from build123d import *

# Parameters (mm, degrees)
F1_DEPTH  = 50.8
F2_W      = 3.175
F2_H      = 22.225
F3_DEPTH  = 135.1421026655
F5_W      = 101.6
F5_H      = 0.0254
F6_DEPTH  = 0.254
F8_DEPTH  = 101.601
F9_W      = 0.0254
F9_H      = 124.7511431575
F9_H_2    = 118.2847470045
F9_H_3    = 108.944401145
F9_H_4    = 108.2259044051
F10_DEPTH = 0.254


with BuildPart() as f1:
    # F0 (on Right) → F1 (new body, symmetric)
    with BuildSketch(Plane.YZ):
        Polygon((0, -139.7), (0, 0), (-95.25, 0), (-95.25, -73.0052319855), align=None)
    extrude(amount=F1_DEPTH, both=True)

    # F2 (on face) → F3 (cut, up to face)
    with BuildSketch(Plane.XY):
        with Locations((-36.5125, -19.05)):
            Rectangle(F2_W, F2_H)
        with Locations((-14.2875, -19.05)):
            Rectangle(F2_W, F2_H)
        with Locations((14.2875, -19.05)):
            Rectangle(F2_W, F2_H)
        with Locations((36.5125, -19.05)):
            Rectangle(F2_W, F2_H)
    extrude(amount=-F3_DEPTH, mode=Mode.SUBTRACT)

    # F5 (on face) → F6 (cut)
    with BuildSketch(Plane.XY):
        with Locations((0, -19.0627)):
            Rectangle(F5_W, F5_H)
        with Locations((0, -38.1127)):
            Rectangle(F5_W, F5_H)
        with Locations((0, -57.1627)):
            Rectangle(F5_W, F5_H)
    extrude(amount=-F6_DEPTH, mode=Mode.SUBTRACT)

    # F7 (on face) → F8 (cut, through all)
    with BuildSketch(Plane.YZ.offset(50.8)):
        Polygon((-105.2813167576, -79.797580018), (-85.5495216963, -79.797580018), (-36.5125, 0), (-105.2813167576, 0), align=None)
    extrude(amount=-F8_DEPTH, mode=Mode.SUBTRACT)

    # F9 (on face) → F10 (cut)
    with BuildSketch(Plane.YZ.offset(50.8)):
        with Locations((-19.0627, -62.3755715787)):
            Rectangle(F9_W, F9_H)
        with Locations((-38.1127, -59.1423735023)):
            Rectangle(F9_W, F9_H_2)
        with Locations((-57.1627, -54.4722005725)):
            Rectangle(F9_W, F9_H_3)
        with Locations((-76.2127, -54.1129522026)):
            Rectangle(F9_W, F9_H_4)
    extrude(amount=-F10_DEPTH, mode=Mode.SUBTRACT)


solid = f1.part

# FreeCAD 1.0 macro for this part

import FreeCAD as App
import Part
import Sketcher

V = App.Vector
Q = App.Units.Quantity

doc = App.newDocument("Part")
params = doc.addObject("Spreadsheet::Sheet", "Params")
for row, (alias, value) in enumerate([
    ("sketch1_height", "5.5 in"),
    ("sketch1_width", "3.75 in"),
    ("pad1_length", "4 in"),
    ("sketch2_width", "0.125 in"),
    ("sketch2_height", "0.875 in"),
    ("pocket1_length", "135.142103 mm"),
    ("sketch3_width", "4 in"),
    ("sketch3_height", "0.001 in"),
    ("pocket2_length", "0.01 in"),
    ("sketch5_width", "0.001 in"),
    ("pocket4_length", "0.01 in"),
], start=1):
    params.set(f"A{row}", alias)
    params.set(f"B{row}", "=" + value)
    params.setAlias(f"B{row}", alias)

body = doc.addObject("PartDesign::Body", "Body")

# Sketch on YZ plane
sketch1 = body.newObject("Sketcher::SketchObject", "Sketch")
sketch1.AttachmentSupport = (doc.getObject("YZ_Plane"), [""])
sketch1.MapMode = "FlatFace"
sketch1.addGeometry([
    Part.LineSegment(V(0, -140, 0), V(0, 0, 0)),
    Part.LineSegment(V(0, 0, 0), V(-95, 0, 0)),
    Part.LineSegment(V(-95, 0, 0), V(-95, -73, 0)),
    Part.LineSegment(V(-95, -73, 0), V(0, -140, 0)),
], False)
sketch1.addConstraint([
    Sketcher.Constraint("Coincident", 0, 2, 1, 1),
    Sketcher.Constraint("Coincident", 1, 2, 2, 1),
    Sketcher.Constraint("Coincident", 2, 2, 3, 1),
    Sketcher.Constraint("Coincident", 3, 2, 0, 1),
    Sketcher.Constraint("Vertical", 0),
    Sketcher.Constraint("Horizontal", 1),
    Sketcher.Constraint("Vertical", 2),
    Sketcher.Constraint("Coincident", 0, 2, -1, 1),
    Sketcher.Constraint("DistanceY", 0, 1, 0, 2, Q("5.5 in")),
    Sketcher.Constraint("Angle", 3, Q("-35 deg")),
    Sketcher.Constraint("DistanceX", 1, 2, 1, 1, Q("3.75 in")),
])
sketch1.setExpression("Constraints[8]", "Params.sketch1_height")
sketch1.setExpression("Constraints[10]", "Params.sketch1_width")
pad1 = body.newObject("PartDesign::Pad", "Pad")
pad1.Profile = sketch1
pad1.setExpression("Length", "Params.pad1_length")
pad1.Midplane = True

# Sketch on XY plane
sketch2 = body.newObject("Sketcher::SketchObject", "Sketch001")
sketch2.AttachmentSupport = (doc.getObject("XY_Plane"), [""])
sketch2.MapMode = "FlatFace"
sketch2.addGeometry([
    Part.LineSegment(V(-38.1, -7.9, 0), V(-38.1, -30.2, 0)),  # 0
    Part.LineSegment(V(-38.1, -30.2, 0), V(-34.9, -30.2, 0)),  # 1
    Part.LineSegment(V(-34.9, -30.2, 0), V(-34.9, -7.9, 0)),  # 2
    Part.LineSegment(V(-34.9, -7.9, 0), V(-38.1, -7.9, 0)),  # 3
    Part.LineSegment(V(-15.9, -7.9, 0), V(-15.9, -30.2, 0)),  # 4
    Part.LineSegment(V(-15.9, -30.2, 0), V(-12.7, -30.2, 0)),  # 5
    Part.LineSegment(V(-12.7, -30.2, 0), V(-12.7, -7.9, 0)),  # 6
    Part.LineSegment(V(-12.7, -7.9, 0), V(-15.9, -7.9, 0)),  # 7
    Part.LineSegment(V(12.7, -7.9, 0), V(12.7, -30.2, 0)),  # 8
    Part.LineSegment(V(12.7, -30.2, 0), V(15.9, -30.2, 0)),  # 9
    Part.LineSegment(V(15.9, -30.2, 0), V(15.9, -7.9, 0)),  # 10
    Part.LineSegment(V(15.9, -7.9, 0), V(12.7, -7.9, 0)),  # 11
    Part.LineSegment(V(34.9, -7.9, 0), V(34.9, -30.2, 0)),  # 12
    Part.LineSegment(V(34.9, -30.2, 0), V(38.1, -30.2, 0)),  # 13
    Part.LineSegment(V(38.1, -30.2, 0), V(38.1, -7.9, 0)),  # 14
    Part.LineSegment(V(38.1, -7.9, 0), V(34.9, -7.9, 0)),  # 15
], False)
sketch2.addConstraint([
    Sketcher.Constraint("Coincident", 0, 2, 1, 1),
    Sketcher.Constraint("Coincident", 1, 2, 2, 1),
    Sketcher.Constraint("Coincident", 2, 2, 3, 1),
    Sketcher.Constraint("Coincident", 3, 2, 0, 1),
    Sketcher.Constraint("Coincident", 4, 2, 5, 1),
    Sketcher.Constraint("Coincident", 5, 2, 6, 1),
    Sketcher.Constraint("Coincident", 6, 2, 7, 1),
    Sketcher.Constraint("Coincident", 7, 2, 4, 1),
    Sketcher.Constraint("Coincident", 8, 2, 9, 1),
    Sketcher.Constraint("Coincident", 9, 2, 10, 1),
    Sketcher.Constraint("Coincident", 10, 2, 11, 1),
    Sketcher.Constraint("Coincident", 11, 2, 8, 1),
    Sketcher.Constraint("Coincident", 12, 2, 13, 1),
    Sketcher.Constraint("Coincident", 13, 2, 14, 1),
    Sketcher.Constraint("Coincident", 14, 2, 15, 1),
    Sketcher.Constraint("Coincident", 15, 2, 12, 1),
    Sketcher.Constraint("Vertical", 0),
    Sketcher.Constraint("Horizontal", 1),
    Sketcher.Constraint("Vertical", 2),
    Sketcher.Constraint("Horizontal", 3),
    Sketcher.Constraint("Vertical", 4),
    Sketcher.Constraint("Horizontal", 5),
    Sketcher.Constraint("Vertical", 6),
    Sketcher.Constraint("Horizontal", 7),
    Sketcher.Constraint("Vertical", 8),
    Sketcher.Constraint("Horizontal", 9),
    Sketcher.Constraint("Vertical", 10),
    Sketcher.Constraint("Horizontal", 11),
    Sketcher.Constraint("Vertical", 12),
    Sketcher.Constraint("Horizontal", 13),
    Sketcher.Constraint("Vertical", 14),
    Sketcher.Constraint("Horizontal", 15),
    Sketcher.Constraint("Symmetric", 5, 2, 8, 2, -2),
    Sketcher.Constraint("Symmetric", 7, 2, 10, 2, -2),
    Sketcher.Constraint("Symmetric", 1, 2, 12, 2, -2),
    Sketcher.Constraint("Symmetric", 3, 2, 14, 2, -2),
    Sketcher.Constraint("Horizontal", 1, 2, 4, 2),
    Sketcher.Constraint("Horizontal", 3, 2, 6, 2),
    Sketcher.Constraint("Equal", 3, 5),
    Sketcher.Constraint("DistanceX", 0, 2, 5, 2, Q("1 in")),
    Sketcher.Constraint("DistanceX", 5, 2, 8, 2, Q("1 in")),
    Sketcher.Constraint("DistanceX", 1, 1, 1, 2, Q("0.125 in")),
    Sketcher.Constraint("DistanceY", 0, 2, 0, 1, Q("0.875 in")),
    Sketcher.Constraint("DistanceY", 0, 2, -1, 1, Q("1.1875 in")),
])
sketch2.setExpression("Constraints[41]", "Params.sketch2_width")
sketch2.setExpression("Constraints[42]", "Params.sketch2_height")
pocket1 = body.newObject("PartDesign::Pocket", "Pocket")
pocket1.Profile = sketch2
pocket1.setExpression("Length", "Params.pocket1_length")

# Sketch on XY plane
sketch3 = body.newObject("Sketcher::SketchObject", "Sketch002")
sketch3.AttachmentSupport = (doc.getObject("XY_Plane"), [""])
sketch3.MapMode = "FlatFace"
sketch3.addGeometry([
    Part.LineSegment(V(-50.8, -19.05, 0), V(-50.8, -19.075, 0)),  # 0
    Part.LineSegment(V(-50.8, -19.075, 0), V(50.8, -19.075, 0)),  # 1
    Part.LineSegment(V(50.8, -19.075, 0), V(50.8, -19.05, 0)),  # 2
    Part.LineSegment(V(50.8, -19.05, 0), V(-50.8, -19.05, 0)),  # 3
    Part.LineSegment(V(-50.8, -38.1, 0), V(-50.8, -38.125, 0)),  # 4
    Part.LineSegment(V(-50.8, -38.125, 0), V(50.8, -38.125, 0)),  # 5
    Part.LineSegment(V(50.8, -38.125, 0), V(50.8, -38.1, 0)),  # 6
    Part.LineSegment(V(50.8, -38.1, 0), V(-50.8, -38.1, 0)),  # 7
    Part.LineSegment(V(-50.8, -57.15, 0), V(-50.8, -57.175, 0)),  # 8
    Part.LineSegment(V(-50.8, -57.175, 0), V(50.8, -57.175, 0)),  # 9
    Part.LineSegment(V(50.8, -57.175, 0), V(50.8, -57.15, 0)),  # 10
    Part.LineSegment(V(50.8, -57.15, 0), V(-50.8, -57.15, 0)),  # 11
], False)
sketch3.addConstraint([
    Sketcher.Constraint("Coincident", 0, 2, 1, 1),
    Sketcher.Constraint("Coincident", 1, 2, 2, 1),
    Sketcher.Constraint("Coincident", 2, 2, 3, 1),
    Sketcher.Constraint("Coincident", 3, 2, 0, 1),
    Sketcher.Constraint("Coincident", 4, 2, 5, 1),
    Sketcher.Constraint("Coincident", 5, 2, 6, 1),
    Sketcher.Constraint("Coincident", 6, 2, 7, 1),
    Sketcher.Constraint("Coincident", 7, 2, 4, 1),
    Sketcher.Constraint("Coincident", 8, 2, 9, 1),
    Sketcher.Constraint("Coincident", 9, 2, 10, 1),
    Sketcher.Constraint("Coincident", 10, 2, 11, 1),
    Sketcher.Constraint("Coincident", 11, 2, 8, 1),
    Sketcher.Constraint("Vertical", 0),
    Sketcher.Constraint("Horizontal", 1),
    Sketcher.Constraint("Vertical", 2),
    Sketcher.Constraint("Horizontal", 3),
    Sketcher.Constraint("Vertical", 4),
    Sketcher.Constraint("Horizontal", 5),
    Sketcher.Constraint("Vertical", 6),
    Sketcher.Constraint("Horizontal", 7),
    Sketcher.Constraint("Vertical", 8),
    Sketcher.Constraint("Horizontal", 9),
    Sketcher.Constraint("Vertical", 10),
    Sketcher.Constraint("Horizontal", 11),
    Sketcher.Constraint("Vertical", 3, 2, 4, 2),
    Sketcher.Constraint("Vertical", 2, 2, 5, 2),
    Sketcher.Constraint("Vertical", 7, 2, 8, 2),
    Sketcher.Constraint("Vertical", 6, 2, 9, 2),
    Sketcher.Constraint("Equal", 2, 4),
    Sketcher.Constraint("Equal", 6, 8),
    Sketcher.Constraint("DistanceX", 1, 1, 1, 2, Q("4 in")),
    Sketcher.Constraint("DistanceX", 0, 2, -1, 1, Q("2 in")),
    Sketcher.Constraint("DistanceY", 6, 2, -1, 1, Q("1.5 in")),
    Sketcher.Constraint("DistanceY", 8, 2, 0, 2, Q("1.5 in")),
    Sketcher.Constraint("DistanceY", 0, 2, 0, 1, Q("0.001 in")),
    Sketcher.Constraint("DistanceY", 2, 2, -1, 1, Q("0.75 in")),
])
sketch3.setExpression("Constraints[30]", "Params.sketch3_width")
sketch3.setExpression("Constraints[34]", "Params.sketch3_height")
pocket2 = body.newObject("PartDesign::Pocket", "Pocket001")
pocket2.Profile = sketch3
pocket2.setExpression("Length", "Params.pocket2_length")

# Sketch on YZ plane
sketch4 = body.newObject("Sketcher::SketchObject", "Sketch003")
sketch4.AttachmentSupport = (doc.getObject("YZ_Plane"), [""])
sketch4.MapMode = "FlatFace"
sketch4.AttachmentOffset = App.Placement(V(0, 0, 2 * 25.4), App.Rotation())
sketch4.addGeometry([
    Part.LineSegment(V(-105, -80, 0), V(-86, -80, 0)),
    Part.LineSegment(V(-86, -80, 0), V(-37, 0, 0)),
    Part.LineSegment(V(-37, 0, 0), V(-105, 0, 0)),
    Part.LineSegment(V(-105, 0, 0), V(-105, -80, 0)),
], False)
sketch4.addConstraint([
    Sketcher.Constraint("Coincident", 0, 2, 1, 1),
    Sketcher.Constraint("Coincident", 1, 2, 2, 1),
    Sketcher.Constraint("Coincident", 2, 2, 3, 1),
    Sketcher.Constraint("Coincident", 3, 2, 0, 1),
    Sketcher.Constraint("Horizontal", 0),
    Sketcher.Constraint("Horizontal", 2),
    Sketcher.Constraint("Vertical", 3),
    Sketcher.Constraint("PointOnObject", 1, 2, -1),
    Sketcher.Constraint("DistanceX", 1, 2, -1, 1, Q("1.4375 in")),
    Sketcher.Constraint("DistanceY", 3, 2, 3, 1, 79.79758),
    Sketcher.Constraint("Distance", 1, 93.660468),
    Sketcher.Constraint("DistanceX", 0, 1, 0, 2, 19.731795),
])
pocket3 = body.newObject("PartDesign::Pocket", "Pocket002")
pocket3.Profile = sketch4
pocket3.Type = "ThroughAll"

# Sketch on YZ plane
sketch5 = body.newObject("Sketcher::SketchObject", "Sketch004")
sketch5.AttachmentSupport = (doc.getObject("YZ_Plane"), [""])
sketch5.MapMode = "FlatFace"
sketch5.AttachmentOffset = App.Placement(V(0, 0, 2 * 25.4), App.Rotation())
sketch5.addGeometry([
    Part.LineSegment(V(-19.075, 0, 0), V(-19.075, -124.751, 0)),  # 0
    Part.LineSegment(V(-19.075, -124.751, 0), V(-19.05, -124.751, 0)),  # 1
    Part.LineSegment(V(-19.05, -124.751, 0), V(-19.05, 0, 0)),  # 2
    Part.LineSegment(V(-19.05, 0, 0), V(-19.075, 0, 0)),  # 3
    Part.LineSegment(V(-38.125, 0, 0), V(-38.125, -118.285, 0)),  # 4
    Part.LineSegment(V(-38.125, -118.285, 0), V(-38.1, -118.285, 0)),  # 5
    Part.LineSegment(V(-38.1, -118.285, 0), V(-38.1, 0, 0)),  # 6
    Part.LineSegment(V(-38.1, 0, 0), V(-38.125, 0, 0)),  # 7
    Part.LineSegment(V(-57.175, 0, 0), V(-57.175, -108.944, 0)),  # 8
    Part.LineSegment(V(-57.175, -108.944, 0), V(-57.15, -108.944, 0)),  # 9
    Part.LineSegment(V(-57.15, -108.944, 0), V(-57.15, 0, 0)),  # 10
    Part.LineSegment(V(-57.15, 0, 0), V(-57.175, 0, 0)),  # 11
    Part.LineSegment(V(-76.225, 0, 0), V(-76.225, -108.226, 0)),  # 12
    Part.LineSegment(V(-76.225, -108.226, 0), V(-76.2, -108.226, 0)),  # 13
    Part.LineSegment(V(-76.2, -108.226, 0), V(-76.2, 0, 0)),  # 14
    Part.LineSegment(V(-76.2, 0, 0), V(-76.225, 0, 0)),  # 15
], False)
sketch5.addConstraint([
    Sketcher.Constraint("Coincident", 0, 2, 1, 1),
    Sketcher.Constraint("Coincident", 1, 2, 2, 1),
    Sketcher.Constraint("Coincident", 2, 2, 3, 1),
    Sketcher.Constraint("Coincident", 3, 2, 0, 1),
    Sketcher.Constraint("Coincident", 4, 2, 5, 1),
    Sketcher.Constraint("Coincident", 5, 2, 6, 1),
    Sketcher.Constraint("Coincident", 6, 2, 7, 1),
    Sketcher.Constraint("Coincident", 7, 2, 4, 1),
    Sketcher.Constraint("Coincident", 8, 2, 9, 1),
    Sketcher.Constraint("Coincident", 9, 2, 10, 1),
    Sketcher.Constraint("Coincident", 10, 2, 11, 1),
    Sketcher.Constraint("Coincident", 11, 2, 8, 1),
    Sketcher.Constraint("Coincident", 12, 2, 13, 1),
    Sketcher.Constraint("Coincident", 13, 2, 14, 1),
    Sketcher.Constraint("Coincident", 14, 2, 15, 1),
    Sketcher.Constraint("Coincident", 15, 2, 12, 1),
    Sketcher.Constraint("Vertical", 0),
    Sketcher.Constraint("Horizontal", 1),
    Sketcher.Constraint("Vertical", 2),
    Sketcher.Constraint("Horizontal", 3),
    Sketcher.Constraint("Vertical", 4),
    Sketcher.Constraint("Horizontal", 5),
    Sketcher.Constraint("Vertical", 6),
    Sketcher.Constraint("Horizontal", 7),
    Sketcher.Constraint("Vertical", 8),
    Sketcher.Constraint("Horizontal", 9),
    Sketcher.Constraint("Vertical", 10),
    Sketcher.Constraint("Horizontal", 11),
    Sketcher.Constraint("Vertical", 12),
    Sketcher.Constraint("Horizontal", 13),
    Sketcher.Constraint("Vertical", 14),
    Sketcher.Constraint("Horizontal", 15),
    Sketcher.Constraint("PointOnObject", 2, 2, -1),
    Sketcher.Constraint("PointOnObject", 6, 2, -1),
    Sketcher.Constraint("PointOnObject", 10, 2, -1),
    Sketcher.Constraint("PointOnObject", 14, 2, -1),
    Sketcher.Constraint("Equal", 3, 5),
    Sketcher.Constraint("Equal", 7, 9),
    Sketcher.Constraint("Equal", 11, 13),
    Sketcher.Constraint("DistanceX", 13, 2, -1, 1, Q("3 in")),
    Sketcher.Constraint("DistanceX", 5, 2, -1, 1, Q("1.5 in")),
    Sketcher.Constraint("DistanceX", 8, 2, 0, 2, Q("1.5 in")),
    Sketcher.Constraint("DistanceX", 1, 1, 1, 2, Q("0.001 in")),
    Sketcher.Constraint("DistanceX", 1, 2, -1, 1, Q("0.75 in")),
    Sketcher.Constraint("DistanceY", 8, 2, 8, 1, 108.944401),
    Sketcher.Constraint("DistanceY", 0, 2, 12, 2, Q("0.6506 in")),
    Sketcher.Constraint("DistanceY", 0, 2, 0, 1, 124.751143),
    Sketcher.Constraint("DistanceY", 4, 2, 4, 1, 118.284747),
])
sketch5.setExpression("Constraints[42]", "Params.sketch5_width")
pocket4 = body.newObject("PartDesign::Pocket", "Pocket003")
pocket4.Profile = sketch5
pocket4.setExpression("Length", "Params.pocket4_length")

doc.recompute()
